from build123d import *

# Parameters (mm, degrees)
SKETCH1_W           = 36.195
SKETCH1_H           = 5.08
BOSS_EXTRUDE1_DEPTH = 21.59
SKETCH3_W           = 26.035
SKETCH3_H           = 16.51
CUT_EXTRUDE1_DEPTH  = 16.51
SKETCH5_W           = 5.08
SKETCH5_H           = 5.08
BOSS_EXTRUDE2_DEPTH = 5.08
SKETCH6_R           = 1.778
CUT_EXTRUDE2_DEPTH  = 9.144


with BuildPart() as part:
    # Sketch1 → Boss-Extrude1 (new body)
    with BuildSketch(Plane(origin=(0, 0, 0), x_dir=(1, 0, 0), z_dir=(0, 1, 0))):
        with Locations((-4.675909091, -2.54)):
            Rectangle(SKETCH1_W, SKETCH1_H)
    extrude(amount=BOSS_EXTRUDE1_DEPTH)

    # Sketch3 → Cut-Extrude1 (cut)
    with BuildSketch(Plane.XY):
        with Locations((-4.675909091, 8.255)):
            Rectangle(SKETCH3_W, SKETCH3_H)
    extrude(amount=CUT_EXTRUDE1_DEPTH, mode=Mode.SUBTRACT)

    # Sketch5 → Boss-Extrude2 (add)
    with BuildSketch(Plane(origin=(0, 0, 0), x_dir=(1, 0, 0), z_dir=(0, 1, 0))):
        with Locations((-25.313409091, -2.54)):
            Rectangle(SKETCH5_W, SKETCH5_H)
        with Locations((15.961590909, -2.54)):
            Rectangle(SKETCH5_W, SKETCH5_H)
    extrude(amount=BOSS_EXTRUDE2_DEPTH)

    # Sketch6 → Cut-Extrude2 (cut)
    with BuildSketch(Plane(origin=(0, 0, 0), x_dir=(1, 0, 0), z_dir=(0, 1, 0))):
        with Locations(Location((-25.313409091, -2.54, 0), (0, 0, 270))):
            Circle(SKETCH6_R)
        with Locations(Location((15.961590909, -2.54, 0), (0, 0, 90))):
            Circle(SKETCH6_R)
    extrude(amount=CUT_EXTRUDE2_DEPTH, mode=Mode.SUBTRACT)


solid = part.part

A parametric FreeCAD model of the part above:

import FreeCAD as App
import Part
import Sketcher

V = App.Vector
Q = App.Units.Quantity


def add_polygon(sketch, points):
    """Adds a closed chain of lines whose ends are joined by coincident constraints."""
    first, n = sketch.GeometryCount, len(points)
    for a, b in zip(points, points[1:] + points[:1]):
        sketch.addGeometry(Part.LineSegment(App.Vector(*a, 0), App.Vector(*b, 0)), False)
    for i in range(n):
        sketch.addConstraint(Sketcher.Constraint("Coincident", first + i, 2, first + (i + 1) % n, 1))

doc = App.newDocument("Part")
params = doc.addObject("Spreadsheet::Sheet", "Params")
for row, (alias, value) in enumerate([
    ("sketch1_height", "0.2 in"),
    ("sketch1_width", "1.425 in"),
    ("pad1_length", "0.85 in"),
    ("sketch2_height", "0.65 in"),
    ("sketch2_width", "1.025 in"),
    ("pocket1_length", "0.65 in"),
    ("sketch3_width", "0.2 in"),
    ("pad2_length", "0.2 in"),
    ("sketch4_diameter", "0.14 in"),
    ("pocket2_length", "0.36 in"),
], start=1):
    params.set(f"A{row}", alias)
    params.set(f"B{row}", "=" + value)
    params.setAlias(f"B{row}", alias)

body = doc.addObject("PartDesign::Body", "Body")

# Sketch on XZ plane
sketch1 = doc.addObject("Sketcher::SketchObject", "Sketch")
body.addObject(sketch1)
sketch1.AttachmentSupport = (doc.XZ_Plane, [""])
sketch1.MapMode = "FlatFace"
add_polygon(sketch1, [(-23, 0), (-23, 5), (13, 5), (13, 0)])  # lines 0-3
sketch1.addConstraint([
    Sketcher.Constraint("Vertical", 0),
    Sketcher.Constraint("Horizontal", 1),
    Sketcher.Constraint("Vertical", 2),
    Sketcher.Constraint("Horizontal", 3),
    Sketcher.Constraint("PointOnObject", 2, 2, -1),
    Sketcher.Constraint("DistanceY", 0, 1, 0, 2, Q("0.2 in")),
    Sketcher.Constraint("DistanceX", 1, 1, 1, 2, Q("1.425 in")),
    Sketcher.Constraint("DistanceX", 0, 2, -1, 1, 22.773409),
])
sketch1.setExpression("Constraints[9]", "Params.sketch1_height")
sketch1.setExpression("Constraints[10]", "Params.sketch1_width")
pad1 = doc.addObject("PartDesign::Pad", "Pad")
body.addObject(pad1)
pad1.Profile = sketch1
pad1.setExpression("Length", "Params.pad1_length")
pad1.Reversed = True

# Sketch on XY plane
sketch2 = doc.addObject("Sketcher::SketchObject", "Sketch001")
body.addObject(sketch2)
sketch2.AttachmentSupport = (doc.XY_Plane, [""])
sketch2.MapMode = "FlatFace"
add_polygon(sketch2, [(-18, 17), (-18, 0), (8, 0), (8, 17)])  # lines 0-3
sketch2.addConstraint([
    Sketcher.Constraint("Vertical", 0),
    Sketcher.Constraint("Horizontal", 1),
    Sketcher.Constraint("Vertical", 2),
    Sketcher.Constraint("Horizontal", 3),
    Sketcher.Constraint("PointOnObject", 0, 2, -1),
    Sketcher.Constraint("DistanceY", 0, 2, 0, 1, Q("0.65 in")),
    Sketcher.Constraint("DistanceX", 1, 1, 1, 2, Q("1.025 in")),
    Sketcher.Constraint("DistanceX", 0, 2, -1, 1, 17.693409),
])
sketch2.setExpression("Constraints[9]", "Params.sketch2_height")
sketch2.setExpression("Constraints[10]", "Params.sketch2_width")
pocket1 = doc.addObject("PartDesign::Pocket", "Pocket")
body.addObject(pocket1)
pocket1.Profile = sketch2
pocket1.setExpression("Length", "Params.pocket1_length")
pocket1.Reversed = True

# Sketch on XZ plane
sketch3 = doc.addObject("Sketcher::SketchObject", "Sketch002")
body.addObject(sketch3)
sketch3.AttachmentSupport = (doc.XZ_Plane, [""])
sketch3.MapMode = "FlatFace"
add_polygon(sketch3, [(-28, 0), (-28, 5), (-23, 5), (-23, 0)])  # lines 0-3
add_polygon(sketch3, [(13, 0), (13, 5), (19, 5), (19, 0)])  # lines 4-7
sketch3.addConstraint([
    Sketcher.Constraint("Vertical", 0),
    Sketcher.Constraint("Horizontal", 1),
    Sketcher.Constraint("Vertical", 2),
    Sketcher.Constraint("Horizontal", 3),
    Sketcher.Constraint("Vertical", 4),
    Sketcher.Constraint("Horizontal", 5),
    Sketcher.Constraint("Vertical", 6),
    Sketcher.Constraint("Horizontal", 7),
    Sketcher.Constraint("PointOnObject", 2, 2, -1),
    Sketcher.Constraint("PointOnObject", 6, 2, -1),
    Sketcher.Constraint("Horizontal", 1, 2, 4, 2),
    Sketcher.Constraint("Equal", 3, 5),
    Sketcher.Constraint("Equal", 7, 0),
    Sketcher.Constraint("DistanceX", 1, 1, 1, 2, Q("0.2 in")),
    Sketcher.Constraint("DistanceX", 1, 2, 4, 2, Q("1.425 in")),
    Sketcher.Constraint("DistanceX", 0, 2, -1, 1, 27.853409),
])
sketch3.setExpression("Constraints[21]", "Params.sketch3_width")
pad2 = doc.addObject("PartDesign::Pad", "Pad001")
body.addObject(pad2)
pad2.Profile = sketch3
pad2.setExpression("Length", "Params.pad2_length")
pad2.Reversed = True

# Sketch on XZ plane
sketch4 = doc.addObject("Sketcher::SketchObject", "Sketch003")
body.addObject(sketch4)
sketch4.AttachmentSupport = (doc.XZ_Plane, [""])
sketch4.MapMode = "FlatFace"
sketch4.addGeometry([
    Part.Circle(V(-25.3, 2.5, 0), V(0, 0, 1), 1.8),
    Part.Circle(V(16, 2.5, 0), V(0, 0, 1), 1.8),
], False)
sketch4.addConstraint([
    Sketcher.Constraint("Equal", 0, 1),
    Sketcher.Constraint("Horizontal", 0, 3, 1, 3),
    Sketcher.Constraint("Diameter", 0, Q("0.14 in")),
    Sketcher.Constraint("DistanceY", -1, 1, 0, 3, Q("0.1 in")),
    Sketcher.Constraint("DistanceX", 0, 3, 1, 3, Q("1.625 in")),
    Sketcher.Constraint("DistanceX", 0, 3, -1, 1, 25.313409),
])
sketch4.setExpression("Constraints[2]", "Params.sketch4_diameter")
pocket2 = doc.addObject("PartDesign::Pocket", "Pocket001")
body.addObject(pocket2)
pocket2.Profile = sketch4
pocket2.setExpression("Length", "Params.pocket2_length")

doc.recompute()
